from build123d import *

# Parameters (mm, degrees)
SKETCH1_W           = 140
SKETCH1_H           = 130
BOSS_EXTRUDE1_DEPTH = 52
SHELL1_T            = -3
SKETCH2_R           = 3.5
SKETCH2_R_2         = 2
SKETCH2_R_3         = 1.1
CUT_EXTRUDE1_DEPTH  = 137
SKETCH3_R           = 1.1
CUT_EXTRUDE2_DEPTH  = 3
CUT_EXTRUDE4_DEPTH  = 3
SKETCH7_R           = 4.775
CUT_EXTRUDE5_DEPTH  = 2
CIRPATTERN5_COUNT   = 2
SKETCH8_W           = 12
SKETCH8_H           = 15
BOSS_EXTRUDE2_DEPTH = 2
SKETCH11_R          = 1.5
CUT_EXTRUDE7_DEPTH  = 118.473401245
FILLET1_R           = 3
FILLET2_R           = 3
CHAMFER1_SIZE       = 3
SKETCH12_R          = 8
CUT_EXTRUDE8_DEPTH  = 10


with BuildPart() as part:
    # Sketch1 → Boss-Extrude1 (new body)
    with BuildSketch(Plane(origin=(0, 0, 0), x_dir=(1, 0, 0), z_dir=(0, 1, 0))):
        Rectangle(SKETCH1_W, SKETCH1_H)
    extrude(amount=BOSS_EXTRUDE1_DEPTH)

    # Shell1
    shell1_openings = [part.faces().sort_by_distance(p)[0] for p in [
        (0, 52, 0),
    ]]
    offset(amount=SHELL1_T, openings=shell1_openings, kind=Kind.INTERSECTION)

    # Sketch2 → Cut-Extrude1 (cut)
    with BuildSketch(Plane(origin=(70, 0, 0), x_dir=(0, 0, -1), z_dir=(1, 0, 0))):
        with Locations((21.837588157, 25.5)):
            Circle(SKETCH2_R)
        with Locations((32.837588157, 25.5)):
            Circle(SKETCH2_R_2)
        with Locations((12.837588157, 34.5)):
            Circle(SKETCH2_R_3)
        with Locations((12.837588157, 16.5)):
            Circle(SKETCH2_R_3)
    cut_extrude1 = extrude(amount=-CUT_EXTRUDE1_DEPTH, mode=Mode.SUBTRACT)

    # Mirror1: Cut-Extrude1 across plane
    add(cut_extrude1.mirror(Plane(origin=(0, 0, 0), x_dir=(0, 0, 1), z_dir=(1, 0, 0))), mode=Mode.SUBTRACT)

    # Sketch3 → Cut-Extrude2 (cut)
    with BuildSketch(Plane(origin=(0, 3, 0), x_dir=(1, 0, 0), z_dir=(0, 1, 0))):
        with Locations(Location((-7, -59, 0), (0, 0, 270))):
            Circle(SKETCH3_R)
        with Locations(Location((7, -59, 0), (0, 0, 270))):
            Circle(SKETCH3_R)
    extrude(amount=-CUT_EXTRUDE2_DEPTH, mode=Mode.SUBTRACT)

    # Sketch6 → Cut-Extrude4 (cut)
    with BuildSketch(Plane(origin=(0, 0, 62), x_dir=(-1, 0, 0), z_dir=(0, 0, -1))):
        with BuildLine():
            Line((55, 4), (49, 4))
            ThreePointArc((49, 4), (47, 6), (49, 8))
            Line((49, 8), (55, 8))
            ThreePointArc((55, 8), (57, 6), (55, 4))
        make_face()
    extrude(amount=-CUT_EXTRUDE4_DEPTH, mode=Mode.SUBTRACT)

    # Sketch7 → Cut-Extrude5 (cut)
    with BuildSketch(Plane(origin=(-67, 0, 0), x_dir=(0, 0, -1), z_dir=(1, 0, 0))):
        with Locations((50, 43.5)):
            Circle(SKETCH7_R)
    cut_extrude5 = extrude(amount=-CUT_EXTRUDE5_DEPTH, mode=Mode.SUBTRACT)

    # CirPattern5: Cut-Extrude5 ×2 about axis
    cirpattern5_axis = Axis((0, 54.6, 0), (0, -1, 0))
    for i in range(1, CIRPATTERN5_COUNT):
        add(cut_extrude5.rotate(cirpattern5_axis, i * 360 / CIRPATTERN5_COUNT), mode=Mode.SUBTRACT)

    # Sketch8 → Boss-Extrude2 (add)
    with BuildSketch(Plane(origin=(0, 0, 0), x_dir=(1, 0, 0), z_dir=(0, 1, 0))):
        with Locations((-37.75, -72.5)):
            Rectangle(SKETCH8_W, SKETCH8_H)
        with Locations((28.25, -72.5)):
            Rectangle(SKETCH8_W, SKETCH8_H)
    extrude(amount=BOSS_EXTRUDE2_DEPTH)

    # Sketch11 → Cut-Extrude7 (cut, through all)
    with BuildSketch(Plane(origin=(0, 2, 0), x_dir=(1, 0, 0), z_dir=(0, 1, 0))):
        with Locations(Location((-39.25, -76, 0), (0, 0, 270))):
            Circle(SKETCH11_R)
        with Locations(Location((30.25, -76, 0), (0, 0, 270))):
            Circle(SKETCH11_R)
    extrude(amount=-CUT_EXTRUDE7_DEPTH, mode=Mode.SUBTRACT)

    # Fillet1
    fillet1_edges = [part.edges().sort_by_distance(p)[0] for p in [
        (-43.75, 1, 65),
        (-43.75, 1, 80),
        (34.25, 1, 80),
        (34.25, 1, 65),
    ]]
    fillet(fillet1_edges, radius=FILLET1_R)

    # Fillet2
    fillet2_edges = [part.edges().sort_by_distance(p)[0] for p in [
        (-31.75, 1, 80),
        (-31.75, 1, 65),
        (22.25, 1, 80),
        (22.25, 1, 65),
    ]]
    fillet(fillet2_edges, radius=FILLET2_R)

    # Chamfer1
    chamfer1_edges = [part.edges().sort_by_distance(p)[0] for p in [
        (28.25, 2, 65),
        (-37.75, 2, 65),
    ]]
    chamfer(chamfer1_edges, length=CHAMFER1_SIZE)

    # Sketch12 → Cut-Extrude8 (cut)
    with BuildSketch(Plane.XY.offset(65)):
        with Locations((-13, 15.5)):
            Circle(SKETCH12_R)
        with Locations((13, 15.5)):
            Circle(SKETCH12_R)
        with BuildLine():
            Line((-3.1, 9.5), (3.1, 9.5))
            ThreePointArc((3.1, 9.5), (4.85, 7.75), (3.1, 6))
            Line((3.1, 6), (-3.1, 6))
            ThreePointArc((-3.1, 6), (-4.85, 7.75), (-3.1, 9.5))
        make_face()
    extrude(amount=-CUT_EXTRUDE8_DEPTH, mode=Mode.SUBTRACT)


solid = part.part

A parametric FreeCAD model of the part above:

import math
import FreeCAD as App
import Part
import Sketcher


def edges_at(feature, points):
    """Names of the edges that pass closest to the given points."""
    edges = feature.Shape.Edges
    near = lambda p: min(range(len(edges)), key=lambda i: edges[i].distToShape(Part.Vertex(*p))[0])
    return sorted({f"Edge{near(p) + 1}" for p in points})


def faces_at(feature, points):
    """Names of the faces that lie closest to the given points."""
    faces = feature.Shape.Faces
    near = lambda p: min(range(len(faces)), key=lambda i: faces[i].distToShape(Part.Vertex(*p))[0])
    return sorted({f"Face{near(p) + 1}" for p in points})

doc = App.newDocument("Part")
params = doc.addObject("Spreadsheet::Sheet", "Params")
for row, (alias, value) in enumerate([
    ("sketch1_width", "140 mm"),
    ("sketch1_height", "130 mm"),
    ("pad1_length", "52 mm"),
    ("thickness_wall", "3 mm"),
    ("sketch2_diameter", "7 mm"),
    ("sketch2_diameter2", "4 mm"),
    ("sketch2_diameter3", "2.2 mm"),
    ("pocket1_length", "137 mm"),
    ("sketch3_diameter", "2.2 mm"),
    ("pocket2_length", "3 mm"),
    ("sketch4_radius", "2 mm"),
    ("sketch4_width", "6 mm"),
    ("pocket3_length", "3 mm"),
    ("sketch5_diameter", "9.55 mm"),
    ("pocket4_length", "2 mm"),
    ("sketch6_width", "12 mm"),
    ("sketch6_height", "15 mm"),
    ("pad2_length", "2 mm"),
    ("sketch7_diameter", "3 mm"),
    ("fillet_radius", "3 mm"),
    ("fillet2_radius", "3 mm"),
    ("chamfer_size", "3 mm"),
    ("sketch8_diameter", "16 mm"),
    ("sketch8_radius", "1.75 mm"),
    ("sketch8_width", "6.2 mm"),
    ("pocket6_length", "10 mm"),
], start=1):
    params.set(f"A{row}", alias)
    params.set(f"B{row}", "=" + value)
    params.setAlias(f"B{row}", alias)

body = doc.addObject("PartDesign::Body", "Body")

sketch1 = body.newObject("Sketcher::SketchObject", "Sketch")
sketch1.AttachmentSupport = (doc.getObject("XZ_Plane"), [""])
sketch1.MapMode = "FlatFace"
sketch1.addGeometry([
    Part.LineSegment(App.Vector(-70, -65, 0), App.Vector(-70, 65, 0)),
    Part.LineSegment(App.Vector(-70, 65, 0), App.Vector(70, 65, 0)),
    Part.LineSegment(App.Vector(70, 65, 0), App.Vector(70, -65, 0)),
    Part.LineSegment(App.Vector(70, -65, 0), App.Vector(-70, -65, 0)),
], False)
sketch1.addConstraint([
    Sketcher.Constraint("Coincident", 0, 2, 1, 1),
    Sketcher.Constraint("Coincident", 1, 2, 2, 1),
    Sketcher.Constraint("Coincident", 2, 2, 3, 1),
    Sketcher.Constraint("Coincident", 3, 2, 0, 1),
    Sketcher.Constraint("Vertical", 0),
    Sketcher.Constraint("Horizontal", 1),
    Sketcher.Constraint("Vertical", 2),
    Sketcher.Constraint("Horizontal", 3),
    Sketcher.Constraint("Symmetric", 0, 2, 2, 2, -1, 1),
    Sketcher.Constraint("DistanceX", 1, 1, 1, 2, 140.0),
    Sketcher.Constraint("DistanceY", 0, 1, 0, 2, 130.0),
])
sketch1.setExpression("Constraints[9]", "Params.sketch1_width")
sketch1.setExpression("Constraints[10]", "Params.sketch1_height")
pad1 = body.newObject("PartDesign::Pad", "Pad")
pad1.Profile = sketch1
pad1.setExpression("Length", "Params.pad1_length")
pad1.Reversed = True
doc.recompute()

thickness = body.newObject("PartDesign::Thickness", "Thickness")
thickness.Base = (pad1, faces_at(pad1, [(0, 52, 0)]))
thickness.setExpression("Value", "Params.thickness_wall")
thickness.Reversed = True
thickness.Join = "Intersection"

sketch2 = body.newObject("Sketcher::SketchObject", "Sketch001")
sketch2.AttachmentSupport = (doc.getObject("YZ_Plane"), [""])
sketch2.MapMode = "FlatFace"
sketch2.AttachmentOffset = App.Placement(App.Vector(0, 0, 70), App.Rotation())
sketch2.addGeometry([
    Part.Circle(App.Vector(25.5, -21.837588, 0), App.Vector(0, 0, 1), 3.5),
    Part.Circle(App.Vector(25.5, -32.837588, 0), App.Vector(0, 0, 1), 2),
    Part.Circle(App.Vector(34.5, -12.837588, 0), App.Vector(0, 0, 1), 1.1),
    Part.Circle(App.Vector(16.5, -12.837588, 0), App.Vector(0, 0, 1), 1.1),
], False)
sketch2.addConstraint([
    Sketcher.Constraint("Equal", 2, 3),
    Sketcher.Constraint("Horizontal", 2, 3, 3, 3),
    Sketcher.Constraint("Vertical", 0, 3, 1, 3),
    Sketcher.Constraint("Diameter", 0, 7.0),
    Sketcher.Constraint("Diameter", 1, 4.0),
    Sketcher.Constraint("Diameter", 2, 2.2),
    Sketcher.Constraint("DistanceY", 1, 3, 0, 3, 11.0),
    Sketcher.Constraint("DistanceX", 0, 3, 2, 3, 9.0),
    Sketcher.Constraint("DistanceY", 0, 3, 2, 3, 9.0),
    Sketcher.Constraint("DistanceX", 3, 3, 0, 3, 9.0),
    Sketcher.Constraint("DistanceX", -1, 1, 0, 3, 25.5),
    Sketcher.Constraint("DistanceY", 0, 3, -1, 1, 21.837588),
])
sketch2.setExpression("Constraints[3]", "Params.sketch2_diameter")
sketch2.setExpression("Constraints[4]", "Params.sketch2_diameter2")
sketch2.setExpression("Constraints[5]", "Params.sketch2_diameter3")
pocket1 = body.newObject("PartDesign::Pocket", "Pocket")
pocket1.Profile = sketch2
pocket1.setExpression("Length", "Params.pocket1_length")
doc.recompute()

mirrored = body.newObject("PartDesign::Mirrored", "Mirrored")
mirrored.Originals = [pocket1]
mirrored.MirrorPlane = (doc.getObject("YZ_Plane"), [""])
body.Tip = mirrored

sketch3 = body.newObject("Sketcher::SketchObject", "Sketch002")
sketch3.AttachmentSupport = (doc.getObject("XZ_Plane"), [""])
sketch3.MapMode = "FlatFace"
sketch3.AttachmentOffset = App.Placement(App.Vector(0, 0, -3), App.Rotation())
sketch3.addGeometry([
    Part.Circle(App.Vector(-7, 59, 0), App.Vector(0, 0, 1), 1.1),
    Part.Circle(App.Vector(7, 59, 0), App.Vector(0, 0, 1), 1.1),
], False)
sketch3.addConstraint([
    Sketcher.Constraint("Equal", 0, 1),
    Sketcher.Constraint("Symmetric", 0, 3, 1, 3, -2),
    Sketcher.Constraint("Diameter", 0, 2.2),
    Sketcher.Constraint("DistanceX", 0, 3, -1, 1, 7.0),
    Sketcher.Constraint("DistanceY", -1, 1, 0, 3, 59.0),
])
sketch3.setExpression("Constraints[2]", "Params.sketch3_diameter")
pocket2 = body.newObject("PartDesign::Pocket", "Pocket001")
pocket2.Profile = sketch3
pocket2.setExpression("Length", "Params.pocket2_length")
pocket2.Reversed = True

sketch4 = body.newObject("Sketcher::SketchObject", "Sketch003")
sketch4.AttachmentSupport = (doc.getObject("XY_Plane"), [""])
sketch4.MapMode = "FlatFace"
sketch4.AttachmentOffset = App.Placement(App.Vector(0, 0, 62), App.Rotation())
sketch4.addGeometry([
    Part.LineSegment(App.Vector(-49, 4, 0), App.Vector(-55, 4, 0)),
    Part.ArcOfCircle(Part.Circle(App.Vector(-55, 6, 0), App.Vector(0, 0, 1), 2), math.radians(90), math.radians(270)),
    Part.LineSegment(App.Vector(-55, 8, 0), App.Vector(-49, 8, 0)),
    Part.ArcOfCircle(Part.Circle(App.Vector(-49, 6, 0), App.Vector(0, 0, 1), 2), math.radians(-90), math.radians(90)),
], False)
sketch4.addConstraint([
    Sketcher.Constraint("Tangent", 0, 2, 1, 2),
    Sketcher.Constraint("Tangent", 1, 1, 2, 1),
    Sketcher.Constraint("Tangent", 2, 2, 3, 2),
    Sketcher.Constraint("Tangent", 3, 1, 0, 1),
    Sketcher.Constraint("Horizontal", 0),
    Sketcher.Constraint("Horizontal", 2),
    Sketcher.Constraint("Radius", 1, 2.0),
    Sketcher.Constraint("DistanceX", 0, 2, 0, 1, 6.0),
    Sketcher.Constraint("DistanceX", 1, 3, -1, 1, 55.0),
    Sketcher.Constraint("DistanceY", -1, 1, 1, 3, 6.0),
])
sketch4.setExpression("Constraints[6]", "Params.sketch4_radius")
sketch4.setExpression("Constraints[7]", "Params.sketch4_width")
pocket3 = body.newObject("PartDesign::Pocket", "Pocket002")
pocket3.Profile = sketch4
pocket3.setExpression("Length", "Params.pocket3_length")
pocket3.Reversed = True

sketch5 = body.newObject("Sketcher::SketchObject", "Sketch004")
sketch5.AttachmentSupport = (doc.getObject("YZ_Plane"), [""])
sketch5.MapMode = "FlatFace"
sketch5.AttachmentOffset = App.Placement(App.Vector(0, 0, -67), App.Rotation())
sketch5.addGeometry(Part.Circle(App.Vector(43.5, -50, 0), App.Vector(0, 0, 1), 4.775), False)
sketch5.addConstraint([
    Sketcher.Constraint("Diameter", 0, 9.55),
    Sketcher.Constraint("DistanceY", 0, 3, -1, 1, 50.0),
    Sketcher.Constraint("DistanceX", -1, 1, 0, 3, 43.5),
])
sketch5.setExpression("Constraints[0]", "Params.sketch5_diameter")
pocket4 = body.newObject("PartDesign::Pocket", "Pocket003")
pocket4.Profile = sketch5
pocket4.setExpression("Length", "Params.pocket4_length")
doc.recompute()

polarpattern = body.newObject("PartDesign::PolarPattern", "PolarPattern")
polarpattern.Originals = [pocket4]
polarpattern.Axis = (doc.getObject("Y_Axis"), [""])
polarpattern.Angle = 360
polarpattern.Occurrences = 2
body.Tip = polarpattern

sketch6 = body.newObject("Sketcher::SketchObject", "Sketch005")
sketch6.AttachmentSupport = (doc.getObject("XZ_Plane"), [""])
sketch6.MapMode = "FlatFace"
sketch6.addGeometry([
    Part.LineSegment(App.Vector(-43.75, 65, 0), App.Vector(-43.75, 80, 0)),
    Part.LineSegment(App.Vector(-43.75, 80, 0), App.Vector(-31.75, 80, 0)),
    Part.LineSegment(App.Vector(-31.75, 80, 0), App.Vector(-31.75, 65, 0)),
    Part.LineSegment(App.Vector(-31.75, 65, 0), App.Vector(-43.75, 65, 0)),
    Part.LineSegment(App.Vector(22.25, 65, 0), App.Vector(22.25, 80, 0)),
    Part.LineSegment(App.Vector(22.25, 80, 0), App.Vector(34.25, 80, 0)),
    Part.LineSegment(App.Vector(34.25, 80, 0), App.Vector(34.25, 65, 0)),
    Part.LineSegment(App.Vector(34.25, 65, 0), App.Vector(22.25, 65, 0)),
], False)
sketch6.addConstraint([
    Sketcher.Constraint("Coincident", 0, 2, 1, 1),
    Sketcher.Constraint("Coincident", 1, 2, 2, 1),
    Sketcher.Constraint("Coincident", 2, 2, 3, 1),
    Sketcher.Constraint("Coincident", 3, 2, 0, 1),
    Sketcher.Constraint("Coincident", 4, 2, 5, 1),
    Sketcher.Constraint("Coincident", 5, 2, 6, 1),
    Sketcher.Constraint("Coincident", 6, 2, 7, 1),
    Sketcher.Constraint("Coincident", 7, 2, 4, 1),
    Sketcher.Constraint("Vertical", 0),
    Sketcher.Constraint("Horizontal", 1),
    Sketcher.Constraint("Vertical", 2),
    Sketcher.Constraint("Horizontal", 3),
    Sketcher.Constraint("Vertical", 4),
    Sketcher.Constraint("Horizontal", 5),
    Sketcher.Constraint("Vertical", 6),
    Sketcher.Constraint("Horizontal", 7),
    Sketcher.Constraint("Horizontal", 1, 2, 4, 2),
    Sketcher.Constraint("Horizontal", 3, 2, 6, 2),
    Sketcher.Constraint("Equal", 3, 5),
    Sketcher.Constraint("DistanceX", 1, 1, 1, 2, 12.0),
    Sketcher.Constraint("DistanceY", 0, 1, 0, 2, 15.0),
    Sketcher.Constraint("DistanceY", -1, 1, 0, 2, 80.0),
    Sketcher.Constraint("DistanceX", 1, 2, 4, 2, 54.0),
    Sketcher.Constraint("DistanceX", 0, 2, -1, 1, 43.75),
])
sketch6.setExpression("Constraints[19]", "Params.sketch6_width")
sketch6.setExpression("Constraints[20]", "Params.sketch6_height")
pad2 = body.newObject("PartDesign::Pad", "Pad001")
pad2.Profile = sketch6
pad2.setExpression("Length", "Params.pad2_length")
pad2.Reversed = True

sketch7 = body.newObject("Sketcher::SketchObject", "Sketch006")
sketch7.AttachmentSupport = (doc.getObject("XZ_Plane"), [""])
sketch7.MapMode = "FlatFace"
sketch7.AttachmentOffset = App.Placement(App.Vector(0, 0, -2), App.Rotation())
sketch7.addGeometry([
    Part.Circle(App.Vector(-39.25, 76, 0), App.Vector(0, 0, 1), 1.5),
    Part.Circle(App.Vector(30.25, 76, 0), App.Vector(0, 0, 1), 1.5),
], False)
sketch7.addConstraint([
    Sketcher.Constraint("Equal", 0, 1),
    Sketcher.Constraint("Horizontal", 0, 3, 1, 3),
    Sketcher.Constraint("Diameter", 0, 3.0),
    Sketcher.Constraint("DistanceY", -1, 1, 0, 3, 76.0),
    Sketcher.Constraint("DistanceX", 0, 3, 1, 3, 69.5),
    Sketcher.Constraint("DistanceX", 0, 3, -1, 1, 39.25),
])
sketch7.setExpression("Constraints[2]", "Params.sketch7_diameter")
pocket5 = body.newObject("PartDesign::Pocket", "Pocket004")
pocket5.Profile = sketch7
pocket5.Type = "ThroughAll"
pocket5.Reversed = True
doc.recompute()

fillet = body.newObject("PartDesign::Fillet", "Fillet")
fillet.Base = (pocket5, edges_at(pocket5, [
    (-43.75, 1, 65),
    (-43.75, 1, 80),
    (34.25, 1, 80),
    (34.25, 1, 65),
]))
fillet.setExpression("Radius", "Params.fillet_radius")
doc.recompute()

fillet2 = body.newObject("PartDesign::Fillet", "Fillet001")
fillet2.Base = (fillet, edges_at(fillet, [
    (-31.75, 1, 80),
    (-31.75, 1, 65),
    (22.25, 1, 80),
    (22.25, 1, 65),
]))
fillet2.setExpression("Radius", "Params.fillet2_radius")
doc.recompute()

chamfer = body.newObject("PartDesign::Chamfer", "Chamfer")
chamfer.Base = (fillet2, edges_at(fillet2, [(28.25, 2, 65), (-37.75, 2, 65)]))
chamfer.setExpression("Size", "Params.chamfer_size")

sketch8 = body.newObject("Sketcher::SketchObject", "Sketch007")
sketch8.AttachmentSupport = (doc.getObject("XY_Plane"), [""])
sketch8.MapMode = "FlatFace"
sketch8.AttachmentOffset = App.Placement(App.Vector(0, 0, 65), App.Rotation())
sketch8.addGeometry([
    Part.Circle(App.Vector(-13, 15.5, 0), App.Vector(0, 0, 1), 8),
    Part.Circle(App.Vector(13, 15.5, 0), App.Vector(0, 0, 1), 8),
    Part.LineSegment(App.Vector(3.1, 9.5, 0), App.Vector(-3.1, 9.5, 0)),
    Part.ArcOfCircle(Part.Circle(App.Vector(-3.1, 7.75, 0), App.Vector(0, 0, 1), 1.75), math.radians(90), math.radians(270)),
    Part.LineSegment(App.Vector(-3.1, 6, 0), App.Vector(3.1, 6, 0)),
    Part.ArcOfCircle(Part.Circle(App.Vector(3.1, 7.75, 0), App.Vector(0, 0, 1), 1.75), math.radians(-90), math.radians(90)),
], False)
sketch8.addConstraint([
    Sketcher.Constraint("Tangent", 2, 2, 3, 1),
    Sketcher.Constraint("Tangent", 3, 2, 4, 1),
    Sketcher.Constraint("Tangent", 4, 2, 5, 1),
    Sketcher.Constraint("Tangent", 5, 2, 2, 1),
    Sketcher.Constraint("Horizontal", 2),
    Sketcher.Constraint("Horizontal", 4),
    Sketcher.Constraint("Equal", 0, 1),
    Sketcher.Constraint("Symmetric", 0, 3, 1, 3, -2),
    Sketcher.Constraint("Diameter", 0, 16.0),
    Sketcher.Constraint("Radius", 3, 1.75),
    Sketcher.Constraint("DistanceX", 2, 2, 2, 1, 6.2),
    Sketcher.Constraint("DistanceX", 0, 3, -1, 1, 13.0),
    Sketcher.Constraint("DistanceY", -1, 1, 3, 2, 6.0),
    Sketcher.Constraint("DistanceY", 2, 2, 0, 3, 6.0),
    Sketcher.Constraint("DistanceX", 3, 3, -1, 1, 3.1),
])
sketch8.setExpression("Constraints[8]", "Params.sketch8_diameter")
sketch8.setExpression("Constraints[9]", "Params.sketch8_radius")
sketch8.setExpression("Constraints[10]", "Params.sketch8_width")
pocket6 = body.newObject("PartDesign::Pocket", "Pocket005")
pocket6.Profile = sketch8
pocket6.setExpression("Length", "Params.pocket6_length")

doc.recompute()
